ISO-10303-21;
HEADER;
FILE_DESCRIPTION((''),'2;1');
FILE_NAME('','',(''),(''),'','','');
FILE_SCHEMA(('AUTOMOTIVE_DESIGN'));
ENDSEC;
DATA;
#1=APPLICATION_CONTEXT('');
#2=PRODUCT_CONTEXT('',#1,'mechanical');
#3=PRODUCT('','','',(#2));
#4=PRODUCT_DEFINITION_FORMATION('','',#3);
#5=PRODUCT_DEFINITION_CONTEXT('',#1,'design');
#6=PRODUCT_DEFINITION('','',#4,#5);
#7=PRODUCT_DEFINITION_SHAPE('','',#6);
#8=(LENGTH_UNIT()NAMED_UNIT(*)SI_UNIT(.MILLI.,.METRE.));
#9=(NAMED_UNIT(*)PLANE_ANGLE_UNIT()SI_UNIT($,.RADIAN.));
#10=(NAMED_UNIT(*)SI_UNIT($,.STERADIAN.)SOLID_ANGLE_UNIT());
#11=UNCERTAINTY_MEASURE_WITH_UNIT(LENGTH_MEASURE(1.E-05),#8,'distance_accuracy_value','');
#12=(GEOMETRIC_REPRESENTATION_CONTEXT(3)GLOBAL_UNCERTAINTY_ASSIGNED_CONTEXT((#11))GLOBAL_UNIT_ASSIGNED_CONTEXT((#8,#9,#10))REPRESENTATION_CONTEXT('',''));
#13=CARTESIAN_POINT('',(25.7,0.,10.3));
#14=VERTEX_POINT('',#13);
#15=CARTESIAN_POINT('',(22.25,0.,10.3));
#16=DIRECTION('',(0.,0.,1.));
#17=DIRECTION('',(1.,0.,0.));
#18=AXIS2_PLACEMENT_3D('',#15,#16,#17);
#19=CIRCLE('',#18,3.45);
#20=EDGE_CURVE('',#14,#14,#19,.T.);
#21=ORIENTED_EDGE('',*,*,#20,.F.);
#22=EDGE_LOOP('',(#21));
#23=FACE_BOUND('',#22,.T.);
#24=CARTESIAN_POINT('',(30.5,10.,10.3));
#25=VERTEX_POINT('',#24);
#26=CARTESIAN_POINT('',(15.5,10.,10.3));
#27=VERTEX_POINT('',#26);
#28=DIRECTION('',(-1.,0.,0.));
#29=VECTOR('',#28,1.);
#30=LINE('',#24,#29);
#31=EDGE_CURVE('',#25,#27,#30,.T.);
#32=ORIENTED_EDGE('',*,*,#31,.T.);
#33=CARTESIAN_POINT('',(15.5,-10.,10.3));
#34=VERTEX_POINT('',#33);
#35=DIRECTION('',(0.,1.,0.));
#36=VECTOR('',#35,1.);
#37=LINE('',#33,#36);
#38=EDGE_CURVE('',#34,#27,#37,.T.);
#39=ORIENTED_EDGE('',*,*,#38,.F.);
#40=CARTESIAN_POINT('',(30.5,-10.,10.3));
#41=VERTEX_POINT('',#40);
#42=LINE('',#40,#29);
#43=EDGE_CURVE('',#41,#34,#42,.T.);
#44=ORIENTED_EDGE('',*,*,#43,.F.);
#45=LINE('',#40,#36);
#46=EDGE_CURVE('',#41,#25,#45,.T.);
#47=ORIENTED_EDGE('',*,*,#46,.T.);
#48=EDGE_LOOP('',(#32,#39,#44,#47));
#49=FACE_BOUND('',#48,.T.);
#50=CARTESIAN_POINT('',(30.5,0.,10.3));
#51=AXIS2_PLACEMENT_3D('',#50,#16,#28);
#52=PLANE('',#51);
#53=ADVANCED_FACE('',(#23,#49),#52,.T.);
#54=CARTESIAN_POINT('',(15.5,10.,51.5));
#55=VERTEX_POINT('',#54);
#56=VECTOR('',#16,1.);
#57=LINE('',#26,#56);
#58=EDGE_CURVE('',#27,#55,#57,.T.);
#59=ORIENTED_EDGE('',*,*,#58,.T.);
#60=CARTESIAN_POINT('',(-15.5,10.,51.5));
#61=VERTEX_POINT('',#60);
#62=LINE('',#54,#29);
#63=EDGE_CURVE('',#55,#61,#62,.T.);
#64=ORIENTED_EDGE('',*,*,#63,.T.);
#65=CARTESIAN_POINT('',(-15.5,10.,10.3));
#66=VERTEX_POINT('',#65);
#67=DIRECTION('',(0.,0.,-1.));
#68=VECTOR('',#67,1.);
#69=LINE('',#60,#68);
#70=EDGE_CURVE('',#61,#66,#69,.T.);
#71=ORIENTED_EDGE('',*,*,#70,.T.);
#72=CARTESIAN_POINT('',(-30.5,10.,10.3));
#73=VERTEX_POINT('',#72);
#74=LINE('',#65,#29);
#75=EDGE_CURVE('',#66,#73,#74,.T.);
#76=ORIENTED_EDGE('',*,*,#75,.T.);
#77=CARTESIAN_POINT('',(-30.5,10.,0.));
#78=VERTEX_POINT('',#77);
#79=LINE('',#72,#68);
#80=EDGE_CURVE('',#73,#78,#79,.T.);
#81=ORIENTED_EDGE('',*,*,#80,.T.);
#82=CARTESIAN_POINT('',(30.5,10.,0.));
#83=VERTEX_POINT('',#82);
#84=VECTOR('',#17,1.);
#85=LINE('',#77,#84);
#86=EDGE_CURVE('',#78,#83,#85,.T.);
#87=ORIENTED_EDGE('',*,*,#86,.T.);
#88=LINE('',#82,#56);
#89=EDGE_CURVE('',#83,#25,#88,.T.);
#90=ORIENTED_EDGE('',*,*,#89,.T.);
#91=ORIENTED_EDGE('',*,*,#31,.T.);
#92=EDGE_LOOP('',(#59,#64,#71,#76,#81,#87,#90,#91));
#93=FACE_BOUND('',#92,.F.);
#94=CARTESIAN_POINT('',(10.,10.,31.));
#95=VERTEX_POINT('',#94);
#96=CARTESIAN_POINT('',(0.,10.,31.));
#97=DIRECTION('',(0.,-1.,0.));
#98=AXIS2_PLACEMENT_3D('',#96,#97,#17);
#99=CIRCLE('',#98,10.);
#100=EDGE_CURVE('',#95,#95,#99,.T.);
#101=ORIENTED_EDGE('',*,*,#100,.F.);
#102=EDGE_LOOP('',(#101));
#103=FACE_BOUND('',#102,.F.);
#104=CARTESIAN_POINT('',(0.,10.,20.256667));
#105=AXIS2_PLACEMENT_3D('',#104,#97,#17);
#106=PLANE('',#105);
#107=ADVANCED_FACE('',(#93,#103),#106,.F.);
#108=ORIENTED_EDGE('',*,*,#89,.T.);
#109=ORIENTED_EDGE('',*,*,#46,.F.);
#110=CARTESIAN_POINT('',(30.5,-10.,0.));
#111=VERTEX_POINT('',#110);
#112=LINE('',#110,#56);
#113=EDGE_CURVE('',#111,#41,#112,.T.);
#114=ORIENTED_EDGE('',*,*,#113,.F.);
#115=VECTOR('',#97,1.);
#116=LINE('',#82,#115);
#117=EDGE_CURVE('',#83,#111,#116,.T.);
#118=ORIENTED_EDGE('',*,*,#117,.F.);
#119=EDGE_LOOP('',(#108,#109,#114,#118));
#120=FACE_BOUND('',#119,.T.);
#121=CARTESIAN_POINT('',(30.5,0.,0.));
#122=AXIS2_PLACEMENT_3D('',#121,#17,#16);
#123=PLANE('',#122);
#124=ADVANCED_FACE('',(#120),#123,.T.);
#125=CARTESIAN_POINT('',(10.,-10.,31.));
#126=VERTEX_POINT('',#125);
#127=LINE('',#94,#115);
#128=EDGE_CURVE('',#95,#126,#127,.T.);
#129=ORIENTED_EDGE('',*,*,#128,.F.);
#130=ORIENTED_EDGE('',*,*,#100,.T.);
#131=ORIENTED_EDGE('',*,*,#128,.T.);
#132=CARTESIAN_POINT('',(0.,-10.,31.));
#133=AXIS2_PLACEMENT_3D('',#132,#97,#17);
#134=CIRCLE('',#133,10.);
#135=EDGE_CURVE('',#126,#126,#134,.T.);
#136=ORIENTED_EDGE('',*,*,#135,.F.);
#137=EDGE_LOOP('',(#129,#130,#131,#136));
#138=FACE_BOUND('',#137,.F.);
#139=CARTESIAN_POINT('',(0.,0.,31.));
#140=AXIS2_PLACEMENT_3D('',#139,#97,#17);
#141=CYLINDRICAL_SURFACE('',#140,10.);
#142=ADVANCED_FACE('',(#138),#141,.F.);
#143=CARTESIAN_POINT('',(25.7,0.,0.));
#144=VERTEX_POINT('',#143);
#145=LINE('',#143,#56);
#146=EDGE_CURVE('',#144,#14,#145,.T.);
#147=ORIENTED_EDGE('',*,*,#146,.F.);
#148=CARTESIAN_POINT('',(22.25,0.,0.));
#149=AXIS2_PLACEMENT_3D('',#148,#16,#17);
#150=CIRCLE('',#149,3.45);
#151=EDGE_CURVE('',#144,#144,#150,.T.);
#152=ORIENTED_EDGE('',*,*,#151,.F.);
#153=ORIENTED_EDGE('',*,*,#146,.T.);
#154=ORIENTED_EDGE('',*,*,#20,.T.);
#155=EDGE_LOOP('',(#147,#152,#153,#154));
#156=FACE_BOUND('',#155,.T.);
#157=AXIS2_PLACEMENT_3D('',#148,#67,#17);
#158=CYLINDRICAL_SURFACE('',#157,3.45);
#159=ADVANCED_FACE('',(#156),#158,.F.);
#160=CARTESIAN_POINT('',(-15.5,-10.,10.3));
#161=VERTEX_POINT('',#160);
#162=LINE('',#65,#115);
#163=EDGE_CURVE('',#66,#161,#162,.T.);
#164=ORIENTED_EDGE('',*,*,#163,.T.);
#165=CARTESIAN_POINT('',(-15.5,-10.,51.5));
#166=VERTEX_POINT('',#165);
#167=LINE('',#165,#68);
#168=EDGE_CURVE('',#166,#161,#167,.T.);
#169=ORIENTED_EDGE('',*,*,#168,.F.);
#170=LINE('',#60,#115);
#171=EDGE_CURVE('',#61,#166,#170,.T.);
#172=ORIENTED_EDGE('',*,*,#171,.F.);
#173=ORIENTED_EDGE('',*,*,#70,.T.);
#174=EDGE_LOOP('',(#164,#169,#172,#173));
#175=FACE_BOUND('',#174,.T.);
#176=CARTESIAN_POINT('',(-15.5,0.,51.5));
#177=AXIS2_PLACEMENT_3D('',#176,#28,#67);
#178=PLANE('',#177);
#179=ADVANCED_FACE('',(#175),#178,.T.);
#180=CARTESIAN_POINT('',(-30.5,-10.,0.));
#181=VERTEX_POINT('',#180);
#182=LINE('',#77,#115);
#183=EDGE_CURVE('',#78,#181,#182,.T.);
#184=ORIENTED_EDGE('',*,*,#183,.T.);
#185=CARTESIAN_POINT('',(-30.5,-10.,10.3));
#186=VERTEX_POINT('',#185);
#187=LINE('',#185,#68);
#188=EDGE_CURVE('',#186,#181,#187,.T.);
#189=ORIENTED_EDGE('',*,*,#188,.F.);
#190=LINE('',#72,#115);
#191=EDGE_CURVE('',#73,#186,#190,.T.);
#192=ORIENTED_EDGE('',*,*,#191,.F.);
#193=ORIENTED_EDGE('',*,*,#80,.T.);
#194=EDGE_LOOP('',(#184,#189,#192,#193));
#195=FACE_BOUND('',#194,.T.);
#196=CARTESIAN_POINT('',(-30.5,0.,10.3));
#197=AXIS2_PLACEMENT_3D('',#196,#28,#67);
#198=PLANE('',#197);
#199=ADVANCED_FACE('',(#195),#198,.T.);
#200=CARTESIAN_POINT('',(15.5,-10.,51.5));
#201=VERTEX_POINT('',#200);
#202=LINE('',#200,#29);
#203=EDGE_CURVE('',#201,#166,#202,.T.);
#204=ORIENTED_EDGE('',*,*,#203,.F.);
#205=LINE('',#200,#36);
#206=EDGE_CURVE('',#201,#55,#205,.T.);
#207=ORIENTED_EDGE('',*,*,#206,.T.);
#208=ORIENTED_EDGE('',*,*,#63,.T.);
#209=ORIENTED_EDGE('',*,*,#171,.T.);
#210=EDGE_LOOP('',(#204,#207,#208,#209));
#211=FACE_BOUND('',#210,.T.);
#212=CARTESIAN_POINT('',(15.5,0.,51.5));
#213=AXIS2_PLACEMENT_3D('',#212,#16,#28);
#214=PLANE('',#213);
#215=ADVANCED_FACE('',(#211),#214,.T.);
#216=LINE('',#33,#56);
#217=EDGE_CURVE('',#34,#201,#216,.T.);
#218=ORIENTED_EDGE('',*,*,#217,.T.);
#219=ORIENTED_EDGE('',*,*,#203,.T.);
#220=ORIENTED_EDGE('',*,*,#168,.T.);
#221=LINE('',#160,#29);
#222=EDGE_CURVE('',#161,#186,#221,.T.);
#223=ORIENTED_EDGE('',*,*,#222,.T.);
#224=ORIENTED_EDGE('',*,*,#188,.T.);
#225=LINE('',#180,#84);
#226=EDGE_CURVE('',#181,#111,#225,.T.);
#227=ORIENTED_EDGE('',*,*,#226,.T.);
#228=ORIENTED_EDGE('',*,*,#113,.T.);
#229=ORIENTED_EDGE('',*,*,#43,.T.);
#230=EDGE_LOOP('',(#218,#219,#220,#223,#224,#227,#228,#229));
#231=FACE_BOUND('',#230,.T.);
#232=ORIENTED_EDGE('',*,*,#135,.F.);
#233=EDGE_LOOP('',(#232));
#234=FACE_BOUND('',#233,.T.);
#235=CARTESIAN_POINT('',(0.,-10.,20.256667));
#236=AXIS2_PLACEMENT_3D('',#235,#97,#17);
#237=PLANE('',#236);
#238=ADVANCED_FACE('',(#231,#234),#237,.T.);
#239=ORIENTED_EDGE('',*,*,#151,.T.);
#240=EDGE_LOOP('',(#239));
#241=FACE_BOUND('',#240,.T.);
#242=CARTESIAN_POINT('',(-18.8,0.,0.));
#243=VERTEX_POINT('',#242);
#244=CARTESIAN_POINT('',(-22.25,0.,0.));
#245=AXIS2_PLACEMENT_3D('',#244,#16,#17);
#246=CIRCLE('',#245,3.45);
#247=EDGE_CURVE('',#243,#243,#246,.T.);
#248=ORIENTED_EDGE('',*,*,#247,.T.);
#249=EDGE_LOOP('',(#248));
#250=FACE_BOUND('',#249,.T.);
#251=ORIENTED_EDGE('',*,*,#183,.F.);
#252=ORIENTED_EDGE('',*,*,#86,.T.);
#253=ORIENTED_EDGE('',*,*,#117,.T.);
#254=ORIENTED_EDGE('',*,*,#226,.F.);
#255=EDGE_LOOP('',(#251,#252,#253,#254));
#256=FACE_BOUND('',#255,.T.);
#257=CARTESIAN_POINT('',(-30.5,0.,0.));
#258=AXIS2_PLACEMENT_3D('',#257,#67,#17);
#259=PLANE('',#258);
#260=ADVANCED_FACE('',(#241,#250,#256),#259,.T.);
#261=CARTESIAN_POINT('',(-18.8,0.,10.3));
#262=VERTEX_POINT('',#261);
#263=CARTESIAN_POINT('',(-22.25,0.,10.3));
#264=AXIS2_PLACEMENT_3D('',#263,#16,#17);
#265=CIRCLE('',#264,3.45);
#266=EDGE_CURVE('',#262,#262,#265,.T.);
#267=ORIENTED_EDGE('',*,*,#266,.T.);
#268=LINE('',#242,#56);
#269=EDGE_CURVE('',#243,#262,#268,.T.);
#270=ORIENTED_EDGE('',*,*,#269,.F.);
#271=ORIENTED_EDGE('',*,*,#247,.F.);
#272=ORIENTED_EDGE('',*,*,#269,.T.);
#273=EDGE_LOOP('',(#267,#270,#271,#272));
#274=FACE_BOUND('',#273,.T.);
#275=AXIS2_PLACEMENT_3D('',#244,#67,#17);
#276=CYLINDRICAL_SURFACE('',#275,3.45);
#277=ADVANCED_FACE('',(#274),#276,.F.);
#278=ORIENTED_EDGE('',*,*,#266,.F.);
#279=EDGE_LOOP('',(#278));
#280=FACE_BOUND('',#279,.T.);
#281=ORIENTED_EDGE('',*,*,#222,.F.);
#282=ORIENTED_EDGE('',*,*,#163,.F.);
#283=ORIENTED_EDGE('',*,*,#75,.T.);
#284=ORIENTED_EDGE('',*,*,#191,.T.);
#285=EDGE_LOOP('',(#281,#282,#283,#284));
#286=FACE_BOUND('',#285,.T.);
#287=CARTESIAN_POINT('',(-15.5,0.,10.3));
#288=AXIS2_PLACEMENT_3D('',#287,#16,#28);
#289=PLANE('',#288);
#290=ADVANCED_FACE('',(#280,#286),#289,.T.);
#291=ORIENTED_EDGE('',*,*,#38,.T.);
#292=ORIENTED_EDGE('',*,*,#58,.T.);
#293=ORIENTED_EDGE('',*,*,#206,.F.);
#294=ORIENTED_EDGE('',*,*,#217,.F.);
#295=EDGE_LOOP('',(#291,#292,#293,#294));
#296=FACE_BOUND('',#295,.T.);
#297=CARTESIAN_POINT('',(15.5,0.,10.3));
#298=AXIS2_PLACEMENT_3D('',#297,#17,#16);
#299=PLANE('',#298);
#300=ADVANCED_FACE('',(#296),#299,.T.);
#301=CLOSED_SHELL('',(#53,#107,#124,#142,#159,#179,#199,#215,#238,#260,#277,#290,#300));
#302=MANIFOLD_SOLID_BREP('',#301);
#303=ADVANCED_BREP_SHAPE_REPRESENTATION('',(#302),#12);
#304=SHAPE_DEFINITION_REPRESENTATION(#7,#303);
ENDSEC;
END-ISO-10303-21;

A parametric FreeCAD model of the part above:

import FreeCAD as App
import Part
import Sketcher

V = App.Vector


def add_polygon(sketch, points):
    """Adds a closed chain of lines whose ends are joined by coincident constraints."""
    first, n = sketch.GeometryCount, len(points)
    for a, b in zip(points, points[1:] + points[:1]):
        sketch.addGeometry(Part.LineSegment(App.Vector(*a, 0), App.Vector(*b, 0)), False)
    for i in range(n):
        sketch.addConstraint(Sketcher.Constraint("Coincident", first + i, 2, first + (i + 1) % n, 1))

doc = App.newDocument("Part")
body = doc.addObject("PartDesign::Body", "Body")

# Sketch on XZ plane
sketch1 = body.newObject("Sketcher::SketchObject", "Sketch")
sketch1.AttachmentSupport = (doc.getObject("XZ_Plane"), [""])
sketch1.MapMode = "FlatFace"
add_polygon(sketch1, [(16, 52), (-16, 52), (-16, 10), (-30, 10), (-30, 0), (30, 0), (30, 10), (16, 10)])  # lines 0-7
sketch1.addConstraint(Sketcher.Constraint("Horizontal", 0))
sketch1.addConstraint(Sketcher.Constraint("Vertical", 1))
sketch1.addConstraint(Sketcher.Constraint("Horizontal", 2))
sketch1.addConstraint(Sketcher.Constraint("Vertical", 3))
sketch1.addConstraint(Sketcher.Constraint("Horizontal", 4))
sketch1.addConstraint(Sketcher.Constraint("Vertical", 5))
sketch1.addConstraint(Sketcher.Constraint("Horizontal", 6))
sketch1.addConstraint(Sketcher.Constraint("Vertical", 7))
sketch1.addConstraint(Sketcher.Constraint("Symmetric", 3, 2, 4, 2, -1, 1))
sketch1.addConstraint(Sketcher.Constraint("Symmetric", 1, 2, 6, 2, -2))
sketch1.addConstraint(Sketcher.Constraint("DistanceX", 0, 2, 0, 1, 31.0))
sketch1.addConstraint(Sketcher.Constraint("DistanceX", 2, 2, 2, 1, 15.0))
sketch1.addConstraint(Sketcher.Constraint("DistanceY", 1, 2, 1, 1, 41.2))
sketch1.addConstraint(Sketcher.Constraint("DistanceY", 3, 2, 3, 1, 10.3))
pad1 = body.newObject("PartDesign::Pad", "Pad")
pad1.Profile = sketch1
pad1.Length = 20
pad1.Midplane = True

# Sketch on XZ plane
sketch2 = body.newObject("Sketcher::SketchObject", "Sketch001")
sketch2.AttachmentSupport = (doc.getObject("XZ_Plane"), [""])
sketch2.MapMode = "FlatFace"
sketch2.addGeometry(Part.Circle(V(0, 31, 0), V(0, 0, 1), 10), False)
sketch2.addConstraint(Sketcher.Constraint("PointOnObject", 0, 3, -2))
sketch2.addConstraint(Sketcher.Constraint("Diameter", 0, 20.0))
sketch2.addConstraint(Sketcher.Constraint("DistanceY", -1, 1, 0, 3, 31.0))
pocket1 = body.newObject("PartDesign::Pocket", "Pocket")
pocket1.Profile = sketch2
pocket1.Length = 20
pocket1.Midplane = True

# Sketch on XY plane
sketch3 = body.newObject("Sketcher::SketchObject", "Sketch002")
sketch3.AttachmentSupport = (doc.getObject("XY_Plane"), [""])
sketch3.MapMode = "FlatFace"
sketch3.addGeometry(Part.Circle(V(-22.2, 0, 0), V(0, 0, 1), 3.5), False)
sketch3.addGeometry(Part.Circle(V(22.2, 0, 0), V(0, 0, 1), 3.5), False)
sketch3.addConstraint(Sketcher.Constraint("Equal", 0, 1))
sketch3.addConstraint(Sketcher.Constraint("Symmetric", 0, 3, 1, 3, -1, 1))
sketch3.addConstraint(Sketcher.Constraint("PointOnObject", 0, 3, -1))
sketch3.addConstraint(Sketcher.Constraint("Diameter", 0, 6.9))
sketch3.addConstraint(Sketcher.Constraint("DistanceX", 0, 3, 1, 3, 44.5))
pocket2 = body.newObject("PartDesign::Pocket", "Pocket001")
pocket2.Profile = sketch3
pocket2.Type = "ThroughAll"
pocket2.Reversed = True

doc.recompute()
